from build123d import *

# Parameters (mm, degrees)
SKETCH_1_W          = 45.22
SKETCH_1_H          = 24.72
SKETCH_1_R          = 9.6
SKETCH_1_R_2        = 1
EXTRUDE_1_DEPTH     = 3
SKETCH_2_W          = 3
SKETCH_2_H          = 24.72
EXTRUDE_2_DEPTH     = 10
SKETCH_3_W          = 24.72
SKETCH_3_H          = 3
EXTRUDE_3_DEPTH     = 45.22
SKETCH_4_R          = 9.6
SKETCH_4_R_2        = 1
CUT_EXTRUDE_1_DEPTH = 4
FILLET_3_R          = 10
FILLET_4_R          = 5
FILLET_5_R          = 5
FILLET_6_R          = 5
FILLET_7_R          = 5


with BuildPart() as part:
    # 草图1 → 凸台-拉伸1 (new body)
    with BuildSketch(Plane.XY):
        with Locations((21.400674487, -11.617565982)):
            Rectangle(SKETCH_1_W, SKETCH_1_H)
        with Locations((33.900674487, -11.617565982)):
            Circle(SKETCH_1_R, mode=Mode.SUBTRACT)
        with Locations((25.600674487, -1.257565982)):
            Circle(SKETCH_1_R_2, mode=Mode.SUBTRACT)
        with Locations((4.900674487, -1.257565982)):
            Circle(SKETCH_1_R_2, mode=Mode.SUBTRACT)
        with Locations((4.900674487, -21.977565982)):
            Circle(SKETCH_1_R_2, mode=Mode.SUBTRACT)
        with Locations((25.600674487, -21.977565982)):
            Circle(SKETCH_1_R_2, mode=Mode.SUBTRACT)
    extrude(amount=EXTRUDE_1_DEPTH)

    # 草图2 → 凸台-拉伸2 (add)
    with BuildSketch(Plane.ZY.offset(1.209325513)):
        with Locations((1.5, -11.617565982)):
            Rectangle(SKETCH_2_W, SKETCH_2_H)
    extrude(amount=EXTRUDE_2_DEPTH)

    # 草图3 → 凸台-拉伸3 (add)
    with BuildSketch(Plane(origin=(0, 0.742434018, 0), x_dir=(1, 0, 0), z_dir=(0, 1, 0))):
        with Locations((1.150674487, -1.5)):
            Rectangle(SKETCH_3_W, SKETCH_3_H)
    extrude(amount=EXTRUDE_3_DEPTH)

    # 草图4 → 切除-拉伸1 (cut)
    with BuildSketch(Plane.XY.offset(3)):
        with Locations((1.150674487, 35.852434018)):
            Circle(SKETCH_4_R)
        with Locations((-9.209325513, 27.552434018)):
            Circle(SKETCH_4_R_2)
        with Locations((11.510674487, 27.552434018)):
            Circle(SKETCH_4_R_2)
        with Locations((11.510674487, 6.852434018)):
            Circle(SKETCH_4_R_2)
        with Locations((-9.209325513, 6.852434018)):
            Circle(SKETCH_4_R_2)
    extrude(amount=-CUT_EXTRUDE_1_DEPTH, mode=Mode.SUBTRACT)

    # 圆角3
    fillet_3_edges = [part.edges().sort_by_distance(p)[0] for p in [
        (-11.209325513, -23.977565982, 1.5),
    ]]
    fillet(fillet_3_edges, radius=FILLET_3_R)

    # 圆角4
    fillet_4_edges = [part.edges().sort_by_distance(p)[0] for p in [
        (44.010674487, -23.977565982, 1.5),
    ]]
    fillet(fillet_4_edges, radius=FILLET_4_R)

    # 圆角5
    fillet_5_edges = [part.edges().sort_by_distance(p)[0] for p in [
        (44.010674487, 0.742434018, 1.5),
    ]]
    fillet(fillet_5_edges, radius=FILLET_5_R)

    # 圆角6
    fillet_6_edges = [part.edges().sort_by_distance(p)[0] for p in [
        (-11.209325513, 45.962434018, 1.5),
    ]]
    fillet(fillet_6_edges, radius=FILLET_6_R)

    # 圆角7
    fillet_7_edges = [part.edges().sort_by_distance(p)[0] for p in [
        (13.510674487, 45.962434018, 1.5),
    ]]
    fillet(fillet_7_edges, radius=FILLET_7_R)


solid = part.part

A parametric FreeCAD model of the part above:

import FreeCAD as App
import Part
import Sketcher


def edges_at(feature, points):
    """Names of the edges that pass closest to the given points."""
    edges = feature.Shape.Edges
    near = lambda p: min(range(len(edges)), key=lambda i: edges[i].distToShape(Part.Vertex(*p))[0])
    return sorted({f"Edge{near(p) + 1}" for p in points})


def add_polygon(sketch, points):
    """Adds a closed chain of lines whose ends are joined by coincident constraints."""
    first, n = sketch.GeometryCount, len(points)
    for a, b in zip(points, points[1:] + points[:1]):
        sketch.addGeometry(Part.LineSegment(App.Vector(*a, 0), App.Vector(*b, 0)), False)
    for i in range(n):
        sketch.addConstraint(Sketcher.Constraint("Coincident", first + i, 2, first + (i + 1) % n, 1))

doc = App.newDocument("Part")
body = doc.addObject("PartDesign::Body", "Body")

sketch1 = body.newObject("Sketcher::SketchObject", "Sketch")
sketch1.AttachmentSupport = (doc.getObject("XY_Plane"), [""])
sketch1.MapMode = "FlatFace"
add_polygon(sketch1, [(-1.2, 0.7), (-1.2, -24), (44, -24), (44, 0.7)])
sketch1.addGeometry(Part.Circle(App.Vector(4.9, -22, 0), App.Vector(0, 0, 1), 1), False)
sketch1.addGeometry(Part.Circle(App.Vector(25.6, -22, 0), App.Vector(0, 0, 1), 1), False)
sketch1.addGeometry(Part.Circle(App.Vector(4.9, -1.3, 0), App.Vector(0, 0, 1), 1), False)
sketch1.addGeometry(Part.Circle(App.Vector(33.9, -11.6, 0), App.Vector(0, 0, 1), 9.6), False)
sketch1.addGeometry(Part.Circle(App.Vector(25.6, -1.3, 0), App.Vector(0, 0, 1), 1), False)
sketch1.addConstraint(Sketcher.Constraint("Vertical", 0))
sketch1.addConstraint(Sketcher.Constraint("Horizontal", 1))
sketch1.addConstraint(Sketcher.Constraint("Vertical", 2))
sketch1.addConstraint(Sketcher.Constraint("Horizontal", 3))
sketch1.addConstraint(Sketcher.Constraint("Equal", 4, 5))
sketch1.addConstraint(Sketcher.Constraint("Equal", 5, 6))
sketch1.addConstraint(Sketcher.Constraint("Equal", 6, 8))
sketch1.addConstraint(Sketcher.Constraint("Horizontal", 4, 3, 5, 3))
sketch1.addConstraint(Sketcher.Constraint("Horizontal", 6, 3, 8, 3))
sketch1.addConstraint(Sketcher.Constraint("Vertical", 4, 3, 6, 3))
sketch1.addConstraint(Sketcher.Constraint("Vertical", 5, 3, 8, 3))
sketch1.addConstraint(Sketcher.Constraint("Diameter", 4, 2.0))
sketch1.addConstraint(Sketcher.Constraint("Diameter", 7, 19.2))
sketch1.addConstraint(Sketcher.Constraint("DistanceX", 4, 3, 7, 3, 29.0))
sketch1.addConstraint(Sketcher.Constraint("DistanceY", 0, 2, 4, 3, 2.0))
sketch1.addConstraint(Sketcher.Constraint("DistanceY", 8, 3, 2, 2, 2.0))
sketch1.addConstraint(Sketcher.Constraint("DistanceX", 1, 1, 1, 2, 45.22))
sketch1.addConstraint(Sketcher.Constraint("DistanceY", 0, 2, 0, 1, 24.72))
sketch1.addConstraint(Sketcher.Constraint("DistanceX", 4, 3, 5, 3, 20.7))
sketch1.addConstraint(Sketcher.Constraint("DistanceY", 5, 3, 7, 3, 10.36))
sketch1.addConstraint(Sketcher.Constraint("DistanceX", 0, 2, 4, 3, 6.11))
sketch1.addConstraint(Sketcher.Constraint("DistanceX", -1, 1, 4, 3, 4.900674))
sketch1.addConstraint(Sketcher.Constraint("DistanceY", 4, 3, -1, 1, 21.977566))
pad1 = body.newObject("PartDesign::Pad", "Pad")
pad1.Profile = sketch1
pad1.Length = 3

sketch2 = body.newObject("Sketcher::SketchObject", "Sketch001")
sketch2.AttachmentSupport = (doc.getObject("YZ_Plane"), [""])
sketch2.MapMode = "FlatFace"
sketch2.AttachmentOffset = App.Placement(App.Vector(0, 0, -1.209326), App.Rotation())
add_polygon(sketch2, [(0.7, 0), (-24, 0), (-24, 3), (0.7, 3)])
sketch2.addConstraint(Sketcher.Constraint("Horizontal", 0))
sketch2.addConstraint(Sketcher.Constraint("Vertical", 1))
sketch2.addConstraint(Sketcher.Constraint("Horizontal", 2))
sketch2.addConstraint(Sketcher.Constraint("Vertical", 3))
sketch2.addConstraint(Sketcher.Constraint("PointOnObject", 0, 2, -1))
sketch2.addConstraint(Sketcher.Constraint("DistanceY", 1, 1, 1, 2, 3.0))
sketch2.addConstraint(Sketcher.Constraint("DistanceX", 0, 2, 0, 1, 24.72))
sketch2.addConstraint(Sketcher.Constraint("DistanceX", 0, 2, -1, 1, 23.977566))
pad2 = body.newObject("PartDesign::Pad", "Pad001")
pad2.Profile = sketch2
pad2.Length = 10
pad2.Reversed = True

sketch3 = body.newObject("Sketcher::SketchObject", "Sketch002")
sketch3.AttachmentSupport = (doc.getObject("XZ_Plane"), [""])
sketch3.MapMode = "FlatFace"
sketch3.AttachmentOffset = App.Placement(App.Vector(0, 0, -0.742434), App.Rotation())
add_polygon(sketch3, [(-11.2, 0), (-11.2, 3), (13.5, 3), (13.5, 0)])
sketch3.addConstraint(Sketcher.Constraint("Vertical", 0))
sketch3.addConstraint(Sketcher.Constraint("Horizontal", 1))
sketch3.addConstraint(Sketcher.Constraint("Vertical", 2))
sketch3.addConstraint(Sketcher.Constraint("Horizontal", 3))
sketch3.addConstraint(Sketcher.Constraint("PointOnObject", 2, 2, -1))
sketch3.addConstraint(Sketcher.Constraint("DistanceY", 0, 1, 0, 2, 3.0))
sketch3.addConstraint(Sketcher.Constraint("DistanceX", 1, 1, 1, 2, 24.72))
sketch3.addConstraint(Sketcher.Constraint("DistanceX", 0, 2, -1, 1, 11.209326))
pad3 = body.newObject("PartDesign::Pad", "Pad002")
pad3.Profile = sketch3
pad3.Length = 45.22
pad3.Reversed = True

sketch4 = body.newObject("Sketcher::SketchObject", "Sketch003")
sketch4.AttachmentSupport = (doc.getObject("XY_Plane"), [""])
sketch4.MapMode = "FlatFace"
sketch4.AttachmentOffset = App.Placement(App.Vector(0, 0, 3), App.Rotation())
sketch4.addGeometry(Part.Circle(App.Vector(1.2, 35.9, 0), App.Vector(0, 0, 1), 9.6), False)
sketch4.addGeometry(Part.Circle(App.Vector(-9.2, 27.6, 0), App.Vector(0, 0, 1), 1), False)
sketch4.addGeometry(Part.Circle(App.Vector(11.5, 27.6, 0), App.Vector(0, 0, 1), 1), False)
sketch4.addGeometry(Part.Circle(App.Vector(11.5, 6.9, 0), App.Vector(0, 0, 1), 1), False)
sketch4.addGeometry(Part.Circle(App.Vector(-9.2, 6.9, 0), App.Vector(0, 0, 1), 1), False)
sketch4.addConstraint(Sketcher.Constraint("Equal", 1, 2))
sketch4.addConstraint(Sketcher.Constraint("Equal", 2, 3))
sketch4.addConstraint(Sketcher.Constraint("Equal", 3, 4))
sketch4.addConstraint(Sketcher.Constraint("Horizontal", 1, 3, 2, 3))
sketch4.addConstraint(Sketcher.Constraint("Horizontal", 3, 3, 4, 3))
sketch4.addConstraint(Sketcher.Constraint("Vertical", 2, 3, 3, 3))
sketch4.addConstraint(Sketcher.Constraint("Vertical", 1, 3, 4, 3))
sketch4.addConstraint(Sketcher.Constraint("Diameter", 1, 2.0))
sketch4.addConstraint(Sketcher.Constraint("Diameter", 0, 19.2))
sketch4.addConstraint(Sketcher.Constraint("DistanceY", 3, 3, 0, 3, 29.0))
sketch4.addConstraint(Sketcher.Constraint("DistanceY", 1, 3, 0, 3, 8.3))
sketch4.addConstraint(Sketcher.Constraint("DistanceX", 1, 3, 0, 3, 10.36))
sketch4.addConstraint(Sketcher.Constraint("DistanceX", 0, 3, 2, 3, 10.36))
sketch4.addConstraint(Sketcher.Constraint("DistanceX", -1, 1, 0, 3, 1.150674))
sketch4.addConstraint(Sketcher.Constraint("DistanceY", -1, 1, 0, 3, 35.852434))
pocket1 = body.newObject("PartDesign::Pocket", "Pocket")
pocket1.Profile = sketch4
pocket1.Length = 4
doc.recompute()

fillet = body.newObject("PartDesign::Fillet", "Fillet")
fillet.Base = (pocket1, edges_at(pocket1, [(-11.209, -23.978, 1.5)]))
fillet.Radius = 10
doc.recompute()

fillet2 = body.newObject("PartDesign::Fillet", "Fillet001")
fillet2.Base = (fillet, edges_at(fillet, [(44.011, -23.978, 1.5)]))
fillet2.Radius = 5
doc.recompute()

fillet3 = body.newObject("PartDesign::Fillet", "Fillet002")
fillet3.Base = (fillet2, edges_at(fillet2, [(44.011, 0.742, 1.5)]))
fillet3.Radius = 5
doc.recompute()

fillet4 = body.newObject("PartDesign::Fillet", "Fillet003")
fillet4.Base = (fillet3, edges_at(fillet3, [(-11.209, 45.962, 1.5)]))
fillet4.Radius = 5
doc.recompute()

fillet5 = body.newObject("PartDesign::Fillet", "Fillet004")
fillet5.Base = (fillet4, edges_at(fillet4, [(13.511, 45.962, 1.5)]))
fillet5.Radius = 5

doc.recompute()
